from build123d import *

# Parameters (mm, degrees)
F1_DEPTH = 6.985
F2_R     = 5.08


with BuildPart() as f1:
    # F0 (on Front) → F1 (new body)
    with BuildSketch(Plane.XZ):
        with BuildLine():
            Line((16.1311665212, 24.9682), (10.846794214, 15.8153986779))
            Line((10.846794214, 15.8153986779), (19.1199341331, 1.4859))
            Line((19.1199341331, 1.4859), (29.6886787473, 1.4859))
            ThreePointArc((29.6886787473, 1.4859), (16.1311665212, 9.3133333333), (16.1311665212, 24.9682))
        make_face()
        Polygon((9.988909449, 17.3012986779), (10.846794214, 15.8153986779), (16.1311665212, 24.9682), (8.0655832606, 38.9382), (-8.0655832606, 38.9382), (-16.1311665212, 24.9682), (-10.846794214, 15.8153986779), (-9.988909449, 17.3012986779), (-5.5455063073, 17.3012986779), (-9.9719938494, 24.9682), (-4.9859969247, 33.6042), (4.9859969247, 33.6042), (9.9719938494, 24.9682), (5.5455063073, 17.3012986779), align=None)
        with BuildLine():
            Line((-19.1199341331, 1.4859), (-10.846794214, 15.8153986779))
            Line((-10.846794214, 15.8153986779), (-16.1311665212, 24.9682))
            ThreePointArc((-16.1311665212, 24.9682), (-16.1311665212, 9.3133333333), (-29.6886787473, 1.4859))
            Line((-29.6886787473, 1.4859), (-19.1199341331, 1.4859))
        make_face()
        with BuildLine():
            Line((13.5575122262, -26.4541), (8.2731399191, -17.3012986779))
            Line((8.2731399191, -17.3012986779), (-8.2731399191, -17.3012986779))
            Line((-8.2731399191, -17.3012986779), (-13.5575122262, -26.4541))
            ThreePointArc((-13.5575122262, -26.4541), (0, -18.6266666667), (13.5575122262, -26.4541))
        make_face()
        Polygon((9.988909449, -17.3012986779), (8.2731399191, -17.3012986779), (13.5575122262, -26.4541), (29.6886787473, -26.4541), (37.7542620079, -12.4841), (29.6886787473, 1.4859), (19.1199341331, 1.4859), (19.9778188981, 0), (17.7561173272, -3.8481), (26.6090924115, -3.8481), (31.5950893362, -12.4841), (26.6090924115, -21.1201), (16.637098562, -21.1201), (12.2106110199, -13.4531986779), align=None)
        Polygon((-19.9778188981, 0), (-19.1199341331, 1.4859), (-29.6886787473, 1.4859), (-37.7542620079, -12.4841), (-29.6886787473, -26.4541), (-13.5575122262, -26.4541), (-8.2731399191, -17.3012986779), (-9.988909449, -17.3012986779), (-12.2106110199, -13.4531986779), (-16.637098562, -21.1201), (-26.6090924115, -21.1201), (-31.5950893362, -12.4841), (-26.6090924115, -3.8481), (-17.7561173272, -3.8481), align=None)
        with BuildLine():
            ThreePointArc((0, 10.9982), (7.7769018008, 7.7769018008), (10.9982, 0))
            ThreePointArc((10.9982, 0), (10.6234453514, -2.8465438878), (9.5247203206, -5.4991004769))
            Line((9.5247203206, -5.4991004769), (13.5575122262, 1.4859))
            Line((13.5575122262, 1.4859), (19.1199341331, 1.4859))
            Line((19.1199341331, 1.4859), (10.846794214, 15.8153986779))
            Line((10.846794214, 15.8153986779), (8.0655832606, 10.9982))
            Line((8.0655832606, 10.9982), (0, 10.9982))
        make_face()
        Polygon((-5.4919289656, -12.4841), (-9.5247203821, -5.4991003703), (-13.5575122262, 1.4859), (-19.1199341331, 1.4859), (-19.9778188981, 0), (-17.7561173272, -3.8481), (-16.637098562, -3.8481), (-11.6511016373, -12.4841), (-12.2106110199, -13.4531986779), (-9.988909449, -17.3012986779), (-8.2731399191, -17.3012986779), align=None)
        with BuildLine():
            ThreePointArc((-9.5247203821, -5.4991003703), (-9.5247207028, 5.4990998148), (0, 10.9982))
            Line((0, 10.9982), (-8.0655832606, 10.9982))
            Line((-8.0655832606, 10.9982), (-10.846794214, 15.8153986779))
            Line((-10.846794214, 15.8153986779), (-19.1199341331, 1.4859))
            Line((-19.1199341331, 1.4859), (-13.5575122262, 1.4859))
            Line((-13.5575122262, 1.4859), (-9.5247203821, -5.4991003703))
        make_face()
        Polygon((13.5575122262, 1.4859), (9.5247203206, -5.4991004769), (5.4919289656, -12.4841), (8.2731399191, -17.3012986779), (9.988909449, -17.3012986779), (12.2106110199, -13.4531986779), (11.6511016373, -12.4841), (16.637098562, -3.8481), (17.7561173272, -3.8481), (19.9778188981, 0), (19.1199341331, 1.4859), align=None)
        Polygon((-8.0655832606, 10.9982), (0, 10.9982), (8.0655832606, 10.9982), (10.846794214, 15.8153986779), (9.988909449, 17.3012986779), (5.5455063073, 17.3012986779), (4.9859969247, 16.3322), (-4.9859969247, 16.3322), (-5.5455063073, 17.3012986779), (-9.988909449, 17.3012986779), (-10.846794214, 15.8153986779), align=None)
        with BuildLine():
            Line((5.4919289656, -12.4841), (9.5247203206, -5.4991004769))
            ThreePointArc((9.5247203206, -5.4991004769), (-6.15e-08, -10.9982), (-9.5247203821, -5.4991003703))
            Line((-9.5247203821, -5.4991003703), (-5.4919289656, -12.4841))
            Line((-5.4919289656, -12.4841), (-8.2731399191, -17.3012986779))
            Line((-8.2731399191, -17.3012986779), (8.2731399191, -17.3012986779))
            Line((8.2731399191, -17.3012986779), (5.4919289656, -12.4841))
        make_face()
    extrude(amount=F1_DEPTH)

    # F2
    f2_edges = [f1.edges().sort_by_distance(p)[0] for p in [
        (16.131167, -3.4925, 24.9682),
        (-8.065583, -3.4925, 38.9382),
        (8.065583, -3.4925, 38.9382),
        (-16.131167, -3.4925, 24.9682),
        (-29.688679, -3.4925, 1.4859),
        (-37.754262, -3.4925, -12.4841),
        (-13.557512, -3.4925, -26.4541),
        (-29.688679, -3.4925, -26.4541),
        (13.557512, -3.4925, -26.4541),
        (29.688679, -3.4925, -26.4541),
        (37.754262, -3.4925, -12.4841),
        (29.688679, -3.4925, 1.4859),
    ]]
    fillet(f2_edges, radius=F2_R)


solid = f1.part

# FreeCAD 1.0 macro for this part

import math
import FreeCAD as App
import Part
import Sketcher
from FreeCAD import Vector
Q = App.Units.Quantity


def edges_at(feature, points):
    """Names of the edges that pass closest to the given points."""
    edges = feature.Shape.Edges
    near = lambda p: min(range(len(edges)), key=lambda i: edges[i].distToShape(Part.Vertex(*p))[0])
    return sorted({f"Edge{near(p) + 1}" for p in points})


def add_polygon(sketch, points):
    """Adds a closed chain of lines whose ends are joined by coincident constraints."""
    first, n = sketch.GeometryCount, len(points)
    for a, b in zip(points, points[1:] + points[:1]):
        sketch.addGeometry(Part.LineSegment(App.Vector(*a, 0), App.Vector(*b, 0)), False)
    for i in range(n):
        sketch.addConstraint(Sketcher.Constraint("Coincident", first + i, 2, first + (i + 1) % n, 1))

doc = App.newDocument("Part")
body = doc.addObject("PartDesign::Body", "Body")

sketch1 = body.newObject("Sketcher::SketchObject", "Sketch")
sketch1.AttachmentSupport = (doc.getObject("XZ_Plane"), [""])
sketch1.MapMode = "FlatFace"
sketch1.addGeometry(Part.ArcOfCircle(Part.Circle(Vector(0, -34.281533, 0), Vector(0, 0, 1), 15.654867), math.radians(30), math.radians(150)), False)
sketch1.addGeometry(Part.LineSegment(Vector(13.557512, -26.4541, 0), Vector(29.688679, -26.4541, 0)), False)
sketch1.addGeometry(Part.LineSegment(Vector(29.688679, -26.4541, 0), Vector(37.754262, -12.4841, 0)), False)
sketch1.addGeometry(Part.LineSegment(Vector(37.754262, -12.4841, 0), Vector(29.688679, 1.4859, 0)), False)
sketch1.addGeometry(Part.ArcOfCircle(Part.Circle(Vector(29.688679, 17.140767, 0), Vector(0, 0, 1), 15.654867), math.radians(150), math.radians(270)), False)
sketch1.addGeometry(Part.LineSegment(Vector(16.131167, 24.9682, 0), Vector(8.065583, 38.9382, 0)), False)
sketch1.addGeometry(Part.LineSegment(Vector(8.065583, 38.9382, 0), Vector(-8.065583, 38.9382, 0)), False)
sketch1.addGeometry(Part.LineSegment(Vector(-8.065583, 38.9382, 0), Vector(-16.131167, 24.9682, 0)), False)
sketch1.addGeometry(Part.ArcOfCircle(Part.Circle(Vector(-29.688679, 17.140767, 0), Vector(0, 0, 1), 15.654867), math.radians(-90), math.radians(30)), False)
sketch1.addGeometry(Part.LineSegment(Vector(-29.688679, 1.4859, 0), Vector(-37.754262, -12.4841, 0)), False)
sketch1.addGeometry(Part.LineSegment(Vector(-37.754262, -12.4841, 0), Vector(-29.688679, -26.4541, 0)), False)
sketch1.addGeometry(Part.LineSegment(Vector(-29.688679, -26.4541, 0), Vector(-13.557512, -26.4541, 0)), False)
add_polygon(sketch1, [(-12.210611, -13.453199), (-16.637099, -21.1201), (-26.609092, -21.1201), (-31.595089, -12.4841), (-26.609092, -3.8481), (-16.637099, -3.8481), (-11.651102, -12.4841)])
add_polygon(sketch1, [(16.637099, -21.1201), (12.210611, -13.453199), (11.651102, -12.4841), (16.637099, -3.8481), (26.609092, -3.8481), (31.595089, -12.4841), (26.609092, -21.1201)])
sketch1.addGeometry(Part.ArcOfCircle(Part.Circle(Vector(0, 0, 0), Vector(0, 0, 1), 10.9982), math.radians(90), math.radians(210.000002)), False)
sketch1.addGeometry(Part.ArcOfCircle(Part.Circle(Vector(0, 0, 0), Vector(0, 0, 1), 10.9982), math.radians(0), math.radians(90)), False)
sketch1.addGeometry(Part.ArcOfCircle(Part.Circle(Vector(0, 0, 0), Vector(0, 0, 1), 10.9982), math.radians(-30.000003), math.radians(0)), False)
sketch1.addGeometry(Part.ArcOfCircle(Part.Circle(Vector(0, 0, 0), Vector(0, 0, 1), 10.9982), math.radians(-149.999998), math.radians(-30.000003)), False)
add_polygon(sketch1, [(9.971994, 24.9682), (5.545506, 17.301299), (4.985997, 16.3322), (-4.985997, 16.3322), (-5.545506, 17.301299), (-9.971994, 24.9682), (-4.985997, 33.6042), (4.985997, 33.6042)])
sketch1.addConstraint(Sketcher.Constraint("Coincident", 0, 1, 1, 1))
sketch1.addConstraint(Sketcher.Constraint("Coincident", 1, 2, 2, 1))
sketch1.addConstraint(Sketcher.Constraint("Coincident", 2, 2, 3, 1))
sketch1.addConstraint(Sketcher.Constraint("Coincident", 3, 2, 4, 2))
sketch1.addConstraint(Sketcher.Constraint("Coincident", 4, 1, 5, 1))
sketch1.addConstraint(Sketcher.Constraint("Coincident", 5, 2, 6, 1))
sketch1.addConstraint(Sketcher.Constraint("Coincident", 6, 2, 7, 1))
sketch1.addConstraint(Sketcher.Constraint("Coincident", 7, 2, 8, 2))
sketch1.addConstraint(Sketcher.Constraint("Coincident", 8, 1, 9, 1))
sketch1.addConstraint(Sketcher.Constraint("Coincident", 9, 2, 10, 1))
sketch1.addConstraint(Sketcher.Constraint("Coincident", 10, 2, 11, 1))
sketch1.addConstraint(Sketcher.Constraint("Coincident", 11, 2, 0, 2))
sketch1.addConstraint(Sketcher.Constraint("Tangent", 26, 1, 27, 2))
sketch1.addConstraint(Sketcher.Constraint("Tangent", 27, 1, 28, 2))
sketch1.addConstraint(Sketcher.Constraint("Tangent", 28, 1, 29, 2))
sketch1.addConstraint(Sketcher.Constraint("Tangent", 29, 1, 26, 2))
sketch1.addConstraint(Sketcher.Constraint("Horizontal", 1))
sketch1.addConstraint(Sketcher.Constraint("Horizontal", 6))
sketch1.addConstraint(Sketcher.Constraint("Horizontal", 11))
sketch1.addConstraint(Sketcher.Constraint("Horizontal", 13))
sketch1.addConstraint(Sketcher.Constraint("Horizontal", 16))
sketch1.addConstraint(Sketcher.Constraint("Horizontal", 22))
sketch1.addConstraint(Sketcher.Constraint("Horizontal", 25))
sketch1.addConstraint(Sketcher.Constraint("Horizontal", 32))
sketch1.addConstraint(Sketcher.Constraint("Horizontal", 36))
sketch1.addConstraint(Sketcher.Constraint("Coincident", 26, 3, -1, 1))
sketch1.addConstraint(Sketcher.Constraint("Equal", 0, 4))
sketch1.addConstraint(Sketcher.Constraint("Equal", 4, 8))
sketch1.addConstraint(Sketcher.Constraint("Equal", 26, 27))
sketch1.addConstraint(Sketcher.Constraint("Symmetric", 4, 3, 8, 3, -2))
sketch1.addConstraint(Sketcher.Constraint("Symmetric", 2, 2, 9, 2, -2))
sketch1.addConstraint(Sketcher.Constraint("Symmetric", 1, 2, 10, 2, -2))
sketch1.addConstraint(Sketcher.Constraint("Symmetric", 18, 2, 19, 2, -2))
sketch1.addConstraint(Sketcher.Constraint("Symmetric", 17, 2, 20, 2, -2))
sketch1.addConstraint(Sketcher.Constraint("Symmetric", 16, 2, 21, 2, -2))
sketch1.addConstraint(Sketcher.Constraint("Symmetric", 14, 2, 23, 2, -2))
sketch1.addConstraint(Sketcher.Constraint("Symmetric", 13, 2, 24, 2, -2))
sketch1.addConstraint(Sketcher.Constraint("Symmetric", 30, 2, 33, 2, -2))
sketch1.addConstraint(Sketcher.Constraint("Symmetric", 34, 2, 37, 2, -2))
sketch1.addConstraint(Sketcher.Constraint("PointOnObject", 0, 3, -2))
sketch1.addConstraint(Sketcher.Constraint("PointOnObject", 26, 1, -2))
sketch1.addConstraint(Sketcher.Constraint("PointOnObject", 27, 1, -1))
sketch1.addConstraint(Sketcher.Constraint("Parallel", 3, 5))
sketch1.addConstraint(Sketcher.Constraint("Parallel", 2, 7))
sketch1.addConstraint(Sketcher.Constraint("Parallel", 7, 9))
sketch1.addConstraint(Sketcher.Constraint("Parallel", 5, 10))
sketch1.addConstraint(Sketcher.Constraint("Parallel", 9, 12))
sketch1.addConstraint(Sketcher.Constraint("Parallel", 10, 14))
sketch1.addConstraint(Sketcher.Constraint("Parallel", 12, 15))
sketch1.addConstraint(Sketcher.Constraint("Parallel", 14, 17))
sketch1.addConstraint(Sketcher.Constraint("Parallel", 15, 18))
sketch1.addConstraint(Sketcher.Constraint("Parallel", 17, 19))
sketch1.addConstraint(Sketcher.Constraint("Parallel", 20, 23))
sketch1.addConstraint(Sketcher.Constraint("Parallel", 24, 30))
sketch1.addConstraint(Sketcher.Constraint("Parallel", 30, 31))
sketch1.addConstraint(Sketcher.Constraint("Parallel", 23, 33))
sketch1.addConstraint(Sketcher.Constraint("Parallel", 31, 35))
sketch1.addConstraint(Sketcher.Constraint("Parallel", 34, 37))
sketch1.addConstraint(Sketcher.Constraint("Horizontal", 4, 1, 7, 2))
sketch1.addConstraint(Sketcher.Constraint("Horizontal", 9, 2, 14, 2))
sketch1.addConstraint(Sketcher.Constraint("Horizontal", 14, 2, 17, 2))
sketch1.addConstraint(Sketcher.Constraint("Horizontal", 28, 1, 29, 1))
sketch1.addConstraint(Sketcher.Constraint("Horizontal", 7, 2, 34, 2))
sketch1.addConstraint(Sketcher.Constraint("Vertical", 4, 3, 1, 2))
sketch1.addConstraint(Sketcher.Constraint("Vertical", 1, 2, 3, 2))
sketch1.addConstraint(Sketcher.Constraint("Vertical", 13, 2, 15, 2))
sketch1.addConstraint(Sketcher.Constraint("Vertical", 32, 2, 35, 2))
sketch1.addConstraint(Sketcher.Constraint("Equal", 1, 6))
sketch1.addConstraint(Sketcher.Constraint("Equal", 25, 32))
sketch1.addConstraint(Sketcher.Constraint("Equal", 3, 5))
sketch1.addConstraint(Sketcher.Constraint("Equal", 19, 30))
sketch1.addConstraint(Sketcher.Constraint("Equal", 20, 31))
sketch1.addConstraint(Sketcher.Constraint("Angle", 2, Q("60 deg")))
sketch1.addConstraint(Sketcher.Constraint("Radius", 26, Q("0.433 in")))
sketch1.addConstraint(Sketcher.Constraint("DistanceY", 1, 2, 3, 2, Q("1.1 in")))
sketch1.addConstraint(Sketcher.Constraint("DistanceY", 11, 2, 12, 2, Q("0.21 in")))
sketch1.addConstraint(Sketcher.Constraint("DistanceY", 26, 1, 4, 1, Q("0.55 in")))
sketch1.addConstraint(Sketcher.Constraint("DistanceY", 20, 2, 28, 1, Q("0.275 in")))
sketch1.addConstraint(Sketcher.Constraint("DistanceY", 0, 1, -1, 1, Q("1.0415 in")))
sketch1.addConstraint(Sketcher.Constraint("Radius", 0, Q("15.654867 mm")))
sketch1.addConstraint(Sketcher.Constraint("DistanceY", 0, 3, 4, 3, Q("2.0245 in")))
sketch1.addConstraint(Sketcher.Constraint("DistanceX", 12, 2, -1, 1, Q("16.637099 mm")))
sketch1.addConstraint(Sketcher.Constraint("DistanceY", 18, 2, -1, 1, Q("13.453199 mm")))
sketch1.addConstraint(Sketcher.Constraint("DistanceX", 13, 2, 13, 1, Q("9.971994 mm")))
pad1 = body.newObject("PartDesign::Pad", "Pad")
pad1.Profile = sketch1
pad1.Length = Q("0.275 in")
doc.recompute()

fillet = body.newObject("PartDesign::Fillet", "Fillet")
fillet.Base = (pad1, edges_at(pad1, [
    (16.131, -3.493, 24.968),
    (-8.066, -3.493, 38.938),
    (8.066, -3.493, 38.938),
    (-16.131, -3.493, 24.968),
    (-29.689, -3.493, 1.486),
    (-37.754, -3.493, -12.484),
    (-13.558, -3.493, -26.454),
    (-29.689, -3.493, -26.454),
    (13.558, -3.493, -26.454),
    (29.689, -3.493, -26.454),
    (37.754, -3.493, -12.484),
    (29.689, -3.493, 1.486),
]))
fillet.Radius = Q("0.2 in")

doc.recompute()
